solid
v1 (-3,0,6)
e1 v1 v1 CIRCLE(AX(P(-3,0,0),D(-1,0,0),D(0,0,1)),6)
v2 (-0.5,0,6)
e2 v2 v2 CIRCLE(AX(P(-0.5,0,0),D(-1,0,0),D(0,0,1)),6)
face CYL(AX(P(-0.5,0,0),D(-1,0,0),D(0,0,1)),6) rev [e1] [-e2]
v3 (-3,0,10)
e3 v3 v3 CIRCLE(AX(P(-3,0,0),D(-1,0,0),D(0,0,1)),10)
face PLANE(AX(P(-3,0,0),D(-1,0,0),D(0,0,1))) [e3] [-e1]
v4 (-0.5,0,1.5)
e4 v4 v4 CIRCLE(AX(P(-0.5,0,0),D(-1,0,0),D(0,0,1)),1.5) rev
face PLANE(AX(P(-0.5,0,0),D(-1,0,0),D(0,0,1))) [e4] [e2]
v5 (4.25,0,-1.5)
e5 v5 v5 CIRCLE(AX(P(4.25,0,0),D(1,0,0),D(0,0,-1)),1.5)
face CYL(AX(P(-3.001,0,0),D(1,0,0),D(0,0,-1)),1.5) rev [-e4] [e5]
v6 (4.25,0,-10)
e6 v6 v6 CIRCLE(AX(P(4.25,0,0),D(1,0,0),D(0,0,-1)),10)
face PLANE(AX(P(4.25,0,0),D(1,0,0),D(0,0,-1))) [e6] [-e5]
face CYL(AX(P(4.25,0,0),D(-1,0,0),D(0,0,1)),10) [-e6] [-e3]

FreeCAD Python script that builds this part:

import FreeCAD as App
import Part
import Sketcher

V = App.Vector
Q = App.Units.Quantity

doc = App.newDocument("Part")
body = doc.addObject("PartDesign::Body", "Body")

sketch1 = body.newObject("Sketcher::SketchObject", "Sketch")
sketch1.AttachmentSupport = (doc.getObject("YZ_Plane"), [""])
sketch1.MapMode = "FlatFace"
sketch1.addGeometry(Part.Circle(V(0, 0, 0), V(0, 0, 1), 10), False)
sketch1.addConstraint([
    Sketcher.Constraint("Coincident", 0, 3, -1, 1),
    Sketcher.Constraint("Diameter", 0, Q("20 mm")),
])
pad1 = body.newObject("PartDesign::Pad", "Pad")
pad1.Profile = sketch1
pad1.Length = 4.25

sketch2 = body.newObject("Sketcher::SketchObject", "Sketch001")
sketch2.AttachmentSupport = (doc.getObject("YZ_Plane"), [""])
sketch2.MapMode = "FlatFace"
sketch2.AttachmentOffset = App.Placement(V(0, 0, -3), App.Rotation())
sketch2.addGeometry(Part.Circle(V(0, 0, 0), V(0, 0, 1), 10), False)
sketch2.addConstraint([
    Sketcher.Constraint("Coincident", 0, 3, -1, 1),
    Sketcher.Constraint("Diameter", 0, Q("20 mm")),
])
pad2 = body.newObject("PartDesign::Pad", "Pad001")
pad2.Profile = sketch2
pad2.Length = 3

sketch3 = body.newObject("Sketcher::SketchObject", "Sketch002")
sketch3.AttachmentSupport = (doc.getObject("YZ_Plane"), [""])
sketch3.MapMode = "FlatFace"
sketch3.AttachmentOffset = App.Placement(V(0, 0, 4.25), App.Rotation())
sketch3.addGeometry(Part.Circle(V(0, 0, 0), V(0, 0, 1), 1.5), False)
sketch3.addConstraint([
    Sketcher.Constraint("Coincident", 0, 3, -1, 1),
    Sketcher.Constraint("Diameter", 0, Q("3 mm")),
])
pocket1 = body.newObject("PartDesign::Pocket", "Pocket")
pocket1.Profile = sketch3
pocket1.Type = "UpToFirst"

sketch4 = body.newObject("Sketcher::SketchObject", "Sketch003")
sketch4.AttachmentSupport = (doc.getObject("YZ_Plane"), [""])
sketch4.MapMode = "FlatFace"
sketch4.AttachmentOffset = App.Placement(V(0, 0, -3), App.Rotation())
sketch4.addGeometry(Part.Circle(V(0, 0, 0), V(0, 0, 1), 6), False)
sketch4.addConstraint([
    Sketcher.Constraint("Coincident", 0, 3, -1, 1),
    Sketcher.Constraint("Diameter", 0, Q("12 mm")),
])
pocket2 = body.newObject("PartDesign::Pocket", "Pocket001")
pocket2.Profile = sketch4
pocket2.Length = 2.5
pocket2.Reversed = True

doc.recompute()
